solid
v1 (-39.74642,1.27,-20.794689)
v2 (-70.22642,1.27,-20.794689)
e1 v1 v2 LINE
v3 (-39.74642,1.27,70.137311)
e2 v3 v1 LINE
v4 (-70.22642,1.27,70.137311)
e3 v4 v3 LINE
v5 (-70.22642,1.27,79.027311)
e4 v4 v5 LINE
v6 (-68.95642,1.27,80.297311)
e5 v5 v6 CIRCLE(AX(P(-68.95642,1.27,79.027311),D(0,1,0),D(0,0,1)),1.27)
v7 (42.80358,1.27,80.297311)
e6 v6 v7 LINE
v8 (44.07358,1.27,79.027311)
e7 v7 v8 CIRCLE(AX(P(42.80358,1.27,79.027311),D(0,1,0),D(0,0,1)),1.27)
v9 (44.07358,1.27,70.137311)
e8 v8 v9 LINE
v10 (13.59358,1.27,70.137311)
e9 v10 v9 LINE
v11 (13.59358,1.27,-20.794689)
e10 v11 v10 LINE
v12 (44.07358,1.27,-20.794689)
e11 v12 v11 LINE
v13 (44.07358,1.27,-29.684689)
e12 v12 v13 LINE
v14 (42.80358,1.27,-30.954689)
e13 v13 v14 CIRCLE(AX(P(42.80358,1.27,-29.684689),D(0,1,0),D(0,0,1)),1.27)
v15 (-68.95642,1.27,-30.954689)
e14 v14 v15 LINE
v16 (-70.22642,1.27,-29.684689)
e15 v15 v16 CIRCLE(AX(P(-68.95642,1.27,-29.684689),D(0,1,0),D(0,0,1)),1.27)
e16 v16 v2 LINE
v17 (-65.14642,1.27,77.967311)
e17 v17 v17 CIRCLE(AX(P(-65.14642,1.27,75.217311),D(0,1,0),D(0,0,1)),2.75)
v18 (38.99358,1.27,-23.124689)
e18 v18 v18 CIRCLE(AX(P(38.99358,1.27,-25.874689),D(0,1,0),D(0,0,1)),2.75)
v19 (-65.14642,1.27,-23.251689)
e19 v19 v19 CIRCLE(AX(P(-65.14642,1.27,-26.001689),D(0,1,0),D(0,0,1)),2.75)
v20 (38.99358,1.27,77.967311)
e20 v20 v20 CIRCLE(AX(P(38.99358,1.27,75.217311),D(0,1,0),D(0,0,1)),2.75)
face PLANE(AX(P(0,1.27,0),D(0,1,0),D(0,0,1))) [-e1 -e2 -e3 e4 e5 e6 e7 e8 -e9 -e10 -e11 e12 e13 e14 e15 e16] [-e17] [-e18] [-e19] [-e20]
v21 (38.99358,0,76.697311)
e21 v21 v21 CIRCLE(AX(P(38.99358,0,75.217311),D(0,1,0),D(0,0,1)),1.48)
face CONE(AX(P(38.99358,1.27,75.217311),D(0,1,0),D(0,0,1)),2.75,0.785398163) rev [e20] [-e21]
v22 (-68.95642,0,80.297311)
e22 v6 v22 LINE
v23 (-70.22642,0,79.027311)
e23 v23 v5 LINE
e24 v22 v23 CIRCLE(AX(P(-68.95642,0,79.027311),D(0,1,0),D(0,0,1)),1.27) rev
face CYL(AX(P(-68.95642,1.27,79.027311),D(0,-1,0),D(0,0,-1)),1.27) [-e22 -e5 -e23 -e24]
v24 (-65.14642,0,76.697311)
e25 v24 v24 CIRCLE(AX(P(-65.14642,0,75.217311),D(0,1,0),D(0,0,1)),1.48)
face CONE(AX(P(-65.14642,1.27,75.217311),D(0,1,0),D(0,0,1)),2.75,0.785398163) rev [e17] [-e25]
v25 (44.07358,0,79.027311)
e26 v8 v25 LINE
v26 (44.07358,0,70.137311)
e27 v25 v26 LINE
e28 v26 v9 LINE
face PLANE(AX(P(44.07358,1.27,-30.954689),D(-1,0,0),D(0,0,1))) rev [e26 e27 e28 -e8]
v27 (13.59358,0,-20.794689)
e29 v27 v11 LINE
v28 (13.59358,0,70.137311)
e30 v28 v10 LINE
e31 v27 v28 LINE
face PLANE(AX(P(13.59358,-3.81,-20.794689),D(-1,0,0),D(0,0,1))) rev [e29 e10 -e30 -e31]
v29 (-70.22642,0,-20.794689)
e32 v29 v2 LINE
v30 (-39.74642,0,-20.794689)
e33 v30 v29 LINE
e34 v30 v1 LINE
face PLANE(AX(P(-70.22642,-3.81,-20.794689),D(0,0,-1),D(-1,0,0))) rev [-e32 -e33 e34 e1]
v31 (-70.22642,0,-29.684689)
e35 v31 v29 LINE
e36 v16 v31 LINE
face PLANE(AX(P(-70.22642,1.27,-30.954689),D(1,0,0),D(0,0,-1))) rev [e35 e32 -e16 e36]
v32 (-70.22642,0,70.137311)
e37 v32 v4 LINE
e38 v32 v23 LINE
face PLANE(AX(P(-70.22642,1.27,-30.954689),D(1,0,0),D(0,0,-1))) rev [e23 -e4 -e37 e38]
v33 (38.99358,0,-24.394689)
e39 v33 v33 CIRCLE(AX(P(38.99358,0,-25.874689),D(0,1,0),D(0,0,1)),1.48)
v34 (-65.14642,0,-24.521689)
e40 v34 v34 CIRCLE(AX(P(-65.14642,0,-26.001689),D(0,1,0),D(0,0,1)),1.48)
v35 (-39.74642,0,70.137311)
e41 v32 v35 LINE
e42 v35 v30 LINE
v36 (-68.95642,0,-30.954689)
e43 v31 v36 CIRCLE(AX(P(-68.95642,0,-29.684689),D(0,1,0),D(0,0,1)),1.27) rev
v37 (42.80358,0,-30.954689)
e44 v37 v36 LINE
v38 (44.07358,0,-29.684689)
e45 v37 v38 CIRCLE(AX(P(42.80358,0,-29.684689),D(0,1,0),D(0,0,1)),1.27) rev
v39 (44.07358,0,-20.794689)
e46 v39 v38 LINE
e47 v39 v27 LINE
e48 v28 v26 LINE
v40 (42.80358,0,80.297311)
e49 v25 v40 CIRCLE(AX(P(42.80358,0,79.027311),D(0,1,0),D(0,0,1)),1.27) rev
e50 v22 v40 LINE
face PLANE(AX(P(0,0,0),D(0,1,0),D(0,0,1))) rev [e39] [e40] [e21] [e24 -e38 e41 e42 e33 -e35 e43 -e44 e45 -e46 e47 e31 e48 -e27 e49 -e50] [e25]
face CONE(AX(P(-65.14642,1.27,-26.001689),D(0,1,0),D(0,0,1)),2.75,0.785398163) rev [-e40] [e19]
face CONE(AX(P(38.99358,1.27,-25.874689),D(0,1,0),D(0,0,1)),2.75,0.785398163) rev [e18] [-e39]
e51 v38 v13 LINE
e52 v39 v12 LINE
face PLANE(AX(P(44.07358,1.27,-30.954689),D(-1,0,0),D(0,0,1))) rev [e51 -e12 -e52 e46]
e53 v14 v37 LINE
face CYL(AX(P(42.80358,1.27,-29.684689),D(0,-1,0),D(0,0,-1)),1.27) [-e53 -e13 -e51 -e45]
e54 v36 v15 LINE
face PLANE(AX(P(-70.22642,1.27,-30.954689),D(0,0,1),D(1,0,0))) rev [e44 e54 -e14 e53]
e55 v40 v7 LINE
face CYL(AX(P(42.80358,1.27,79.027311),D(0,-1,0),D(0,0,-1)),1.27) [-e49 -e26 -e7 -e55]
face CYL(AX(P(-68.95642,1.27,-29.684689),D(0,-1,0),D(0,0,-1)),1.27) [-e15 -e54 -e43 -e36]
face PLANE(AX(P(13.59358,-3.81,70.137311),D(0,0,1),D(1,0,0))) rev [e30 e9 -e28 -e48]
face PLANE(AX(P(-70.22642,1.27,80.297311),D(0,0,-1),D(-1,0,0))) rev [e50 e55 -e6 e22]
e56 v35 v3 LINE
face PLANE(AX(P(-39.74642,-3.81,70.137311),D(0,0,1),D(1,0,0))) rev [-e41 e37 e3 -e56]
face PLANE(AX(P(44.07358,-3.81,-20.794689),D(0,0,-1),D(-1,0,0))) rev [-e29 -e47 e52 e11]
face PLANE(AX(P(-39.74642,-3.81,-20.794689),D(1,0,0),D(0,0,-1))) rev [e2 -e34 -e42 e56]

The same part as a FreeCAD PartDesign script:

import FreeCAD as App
import Part
import Sketcher
Q = App.Units.Quantity


def edges_at(feature, points):
    """Names of the edges that pass closest to the given points."""
    edges = feature.Shape.Edges
    near = lambda p: min(range(len(edges)), key=lambda i: edges[i].distToShape(Part.Vertex(*p))[0])
    return sorted({f"Edge{near(p) + 1}" for p in points})

doc = App.newDocument("Part")
params = doc.addObject("Spreadsheet::Sheet", "Params")
for row, (alias, value) in enumerate([
    ("sketch1_width", "4.5 in"),
    ("sketch1_height", "4.38 in"),
    ("pad1_length", "0.05 in"),
    ("sketch2_width", "0.05 in"),
    ("groove_angle", "360 deg"),
    ("linearpattern_pitch", "104.140077 mm"),
    ("linearpattern2_pitch", "145.22543 mm"),
    ("linearpattern3_pitch", "3.985 in"),
    ("fillet_radius", "0.05 in"),
    ("sketch3_width", "1.2 in"),
    ("sketch3_height", "3.58 in"),
    ("pocket1_length", "0.2 in"),
], start=1):
    params.set(f"A{row}", alias)
    params.set(f"B{row}", "=" + value)
    params.setAlias(f"B{row}", alias)

body = doc.addObject("PartDesign::Body", "Body")

# Sketch on XZ plane
sketch1 = body.newObject("Sketcher::SketchObject", "Sketch")
sketch1.AttachmentSupport = (doc.getObject("XZ_Plane"), [""])
sketch1.MapMode = "FlatFace"
sketch1.addGeometry([
    Part.LineSegment(App.Vector(-70, -31, 0), App.Vector(-70, 80, 0)),
    Part.LineSegment(App.Vector(-70, 80, 0), App.Vector(44, 80, 0)),
    Part.LineSegment(App.Vector(44, 80, 0), App.Vector(44, -31, 0)),
    Part.LineSegment(App.Vector(44, -31, 0), App.Vector(-70, -31, 0)),
], False)
sketch1.addConstraint([
    Sketcher.Constraint("Coincident", 0, 2, 1, 1),
    Sketcher.Constraint("Coincident", 1, 2, 2, 1),
    Sketcher.Constraint("Coincident", 2, 2, 3, 1),
    Sketcher.Constraint("Coincident", 3, 2, 0, 1),
    Sketcher.Constraint("Vertical", 0),
    Sketcher.Constraint("Horizontal", 1),
    Sketcher.Constraint("Vertical", 2),
    Sketcher.Constraint("Horizontal", 3),
    Sketcher.Constraint("DistanceX", 1, 1, 1, 2, Q("4.5 in")),
    Sketcher.Constraint("DistanceY", 0, 1, 0, 2, Q("4.38 in")),
    Sketcher.Constraint("DistanceX", 0, 2, -1, 1, Q("70.22642 mm")),
    Sketcher.Constraint("DistanceY", -1, 1, 0, 2, Q("80.297311 mm")),
])
sketch1.setExpression("Constraints[8]", "Params.sketch1_width")
sketch1.setExpression("Constraints[9]", "Params.sketch1_height")
pad1 = body.newObject("PartDesign::Pad", "Pad")
pad1.Profile = sketch1
pad1.setExpression("Length", "Params.pad1_length")
pad1.Reversed = True

# Sketch on YZ plane
sketch2 = body.newObject("Sketcher::SketchObject", "Sketch001")
sketch2.AttachmentSupport = (doc.getObject("YZ_Plane"), [""])
sketch2.MapMode = "FlatFace"
sketch2.AttachmentOffset = App.Placement(App.Vector(0, 0, -65.14642), App.Rotation())
sketch2.addGeometry([
    Part.LineSegment(App.Vector(0, -26.002, 0), App.Vector(1.27, -26.002, 0)),  # 0
    Part.LineSegment(App.Vector(1.27, -26.002, 0), App.Vector(1.27, -23.252, 0)),  # 1
    Part.LineSegment(App.Vector(1.27, -23.252, 0), App.Vector(-0.03, -24.552, 0)),  # 2
    Part.LineSegment(App.Vector(-0.03, -24.552, 0), App.Vector(0, -24.552, 0)),  # 3
    Part.LineSegment(App.Vector(0, -24.552, 0), App.Vector(0, -26.002, 0)),  # 4
], False)
sketch2.addGeometry(Part.LineSegment(App.Vector(1.27, -26.002, 0), App.Vector(-0.03, -26.002, 0)), True)  # axis
sketch2.addConstraint([
    Sketcher.Constraint("Coincident", 0, 2, 1, 1),
    Sketcher.Constraint("Coincident", 1, 2, 2, 1),
    Sketcher.Constraint("Coincident", 2, 2, 3, 1),
    Sketcher.Constraint("Coincident", 3, 2, 4, 1),
    Sketcher.Constraint("Coincident", 4, 2, 0, 1),
    Sketcher.Constraint("Horizontal", 0),
    Sketcher.Constraint("Vertical", 1),
    Sketcher.Constraint("Horizontal", 3),
    Sketcher.Constraint("Vertical", 4),
    Sketcher.Constraint("Horizontal", 5),
    Sketcher.Constraint("Coincident", 5, 1, 0, 2),
    Sketcher.Constraint("PointOnObject", 3, 2, -2),
    Sketcher.Constraint("Vertical", 2, 2, 5, 2),
    Sketcher.Constraint("Angle", 2, Q("-135 deg")),
    Sketcher.Constraint("DistanceX", 0, 1, 0, 2, Q("0.05 in")),
    Sketcher.Constraint("DistanceX", 3, 1, 3, 2, Q("0.03 mm")),
    Sketcher.Constraint("DistanceY", 1, 1, 1, 2, Q("2.75 mm")),
    Sketcher.Constraint("DistanceY", 0, 2, -1, 1, Q("26.001689 mm")),
])
sketch2.setExpression("Constraints[14]", "Params.sketch2_width")
groove = body.newObject("PartDesign::Groove", "Groove")
groove.Profile = sketch2
groove.ReferenceAxis = (sketch2, ["Axis0"])
groove.setExpression("Angle", "Params.groove_angle")
doc.recompute()

datumline = body.newObject("PartDesign::Line", "DatumLine")
datumline.Placement = App.Placement(App.Vector(0, 0, 0), App.Rotation(App.Vector(0, 0, 1), App.Vector(0.999999256, 0, 0.001219511)))
linearpattern = body.newObject("PartDesign::LinearPattern", "LinearPattern")
linearpattern.Originals = [groove]
linearpattern.Direction = (datumline, [""])
linearpattern.Mode = "offset"
linearpattern.setExpression("Offset", "Params.linearpattern_pitch")
linearpattern.Occurrences = 2
body.Tip = linearpattern
doc.recompute()

datumline2 = body.newObject("PartDesign::Line", "DatumLine001")
datumline2.Placement = App.Placement(App.Vector(0, 0, 0), App.Rotation(App.Vector(0, 0, 1), App.Vector(0.71709204, 0, 0.696978483)))
linearpattern2 = body.newObject("PartDesign::LinearPattern", "LinearPattern001")
linearpattern2.Originals = [groove]
linearpattern2.Direction = (datumline2, [""])
linearpattern2.Mode = "offset"
linearpattern2.setExpression("Offset", "Params.linearpattern2_pitch")
linearpattern2.Occurrences = 2
body.Tip = linearpattern2
doc.recompute()

linearpattern3 = body.newObject("PartDesign::LinearPattern", "LinearPattern002")
linearpattern3.Originals = [groove]
linearpattern3.Direction = (doc.getObject("Z_Axis"), [""])
linearpattern3.Mode = "offset"
linearpattern3.setExpression("Offset", "Params.linearpattern3_pitch")
linearpattern3.Occurrences = 2
body.Tip = linearpattern3
doc.recompute()

fillet = body.newObject("PartDesign::Fillet", "Fillet")
fillet.Base = (linearpattern3, edges_at(linearpattern3, [
    (-70.226, 0.635, -30.955),
    (44.074, 0.635, -30.955),
    (44.074, 0.635, 80.297),
    (-70.226, 0.635, 80.297),
]))
fillet.setExpression("Radius", "Params.fillet_radius")

# Sketch on XZ plane
sketch3 = body.newObject("Sketcher::SketchObject", "Sketch002")
sketch3.AttachmentSupport = (doc.getObject("XZ_Plane"), [""])
sketch3.MapMode = "FlatFace"
sketch3.AttachmentOffset = App.Placement(App.Vector(0, 0, -0.05 * 25.4), App.Rotation())
sketch3.addGeometry([
    Part.LineSegment(App.Vector(14, -21, 0), App.Vector(14, 70, 0)),  # 0
    Part.LineSegment(App.Vector(14, 70, 0), App.Vector(44, 70, 0)),  # 1
    Part.LineSegment(App.Vector(44, 70, 0), App.Vector(44, -21, 0)),  # 2
    Part.LineSegment(App.Vector(44, -21, 0), App.Vector(14, -21, 0)),  # 3
    Part.LineSegment(App.Vector(-70, -21, 0), App.Vector(-70, 70, 0)),  # 4
    Part.LineSegment(App.Vector(-70, 70, 0), App.Vector(-40, 70, 0)),  # 5
    Part.LineSegment(App.Vector(-40, 70, 0), App.Vector(-40, -21, 0)),  # 6
    Part.LineSegment(App.Vector(-40, -21, 0), App.Vector(-70, -21, 0)),  # 7
], False)
sketch3.addConstraint([
    Sketcher.Constraint("Coincident", 0, 2, 1, 1),
    Sketcher.Constraint("Coincident", 1, 2, 2, 1),
    Sketcher.Constraint("Coincident", 2, 2, 3, 1),
    Sketcher.Constraint("Coincident", 3, 2, 0, 1),
    Sketcher.Constraint("Coincident", 4, 2, 5, 1),
    Sketcher.Constraint("Coincident", 5, 2, 6, 1),
    Sketcher.Constraint("Coincident", 6, 2, 7, 1),
    Sketcher.Constraint("Coincident", 7, 2, 4, 1),
    Sketcher.Constraint("Vertical", 0),
    Sketcher.Constraint("Horizontal", 1),
    Sketcher.Constraint("Vertical", 2),
    Sketcher.Constraint("Horizontal", 3),
    Sketcher.Constraint("Vertical", 4),
    Sketcher.Constraint("Horizontal", 5),
    Sketcher.Constraint("Vertical", 6),
    Sketcher.Constraint("Horizontal", 7),
    Sketcher.Constraint("Horizontal", 1, 2, 4, 2),
    Sketcher.Constraint("Horizontal", 3, 2, 6, 2),
    Sketcher.Constraint("Equal", 3, 5),
    Sketcher.Constraint("DistanceX", 1, 1, 1, 2, Q("1.2 in")),
    Sketcher.Constraint("DistanceY", 0, 1, 0, 2, Q("3.58 in")),
    Sketcher.Constraint("DistanceX", 4, 2, 0, 2, Q("3.3 in")),
    Sketcher.Constraint("DistanceX", -1, 1, 0, 2, Q("13.59358 mm")),
    Sketcher.Constraint("DistanceY", -1, 1, 0, 2, Q("70.137311 mm")),
])
sketch3.setExpression("Constraints[19]", "Params.sketch3_width")
sketch3.setExpression("Constraints[20]", "Params.sketch3_height")
pocket1 = body.newObject("PartDesign::Pocket", "Pocket")
pocket1.Profile = sketch3
pocket1.setExpression("Length", "Params.pocket1_length")
pocket1.Reversed = True

doc.recompute()
